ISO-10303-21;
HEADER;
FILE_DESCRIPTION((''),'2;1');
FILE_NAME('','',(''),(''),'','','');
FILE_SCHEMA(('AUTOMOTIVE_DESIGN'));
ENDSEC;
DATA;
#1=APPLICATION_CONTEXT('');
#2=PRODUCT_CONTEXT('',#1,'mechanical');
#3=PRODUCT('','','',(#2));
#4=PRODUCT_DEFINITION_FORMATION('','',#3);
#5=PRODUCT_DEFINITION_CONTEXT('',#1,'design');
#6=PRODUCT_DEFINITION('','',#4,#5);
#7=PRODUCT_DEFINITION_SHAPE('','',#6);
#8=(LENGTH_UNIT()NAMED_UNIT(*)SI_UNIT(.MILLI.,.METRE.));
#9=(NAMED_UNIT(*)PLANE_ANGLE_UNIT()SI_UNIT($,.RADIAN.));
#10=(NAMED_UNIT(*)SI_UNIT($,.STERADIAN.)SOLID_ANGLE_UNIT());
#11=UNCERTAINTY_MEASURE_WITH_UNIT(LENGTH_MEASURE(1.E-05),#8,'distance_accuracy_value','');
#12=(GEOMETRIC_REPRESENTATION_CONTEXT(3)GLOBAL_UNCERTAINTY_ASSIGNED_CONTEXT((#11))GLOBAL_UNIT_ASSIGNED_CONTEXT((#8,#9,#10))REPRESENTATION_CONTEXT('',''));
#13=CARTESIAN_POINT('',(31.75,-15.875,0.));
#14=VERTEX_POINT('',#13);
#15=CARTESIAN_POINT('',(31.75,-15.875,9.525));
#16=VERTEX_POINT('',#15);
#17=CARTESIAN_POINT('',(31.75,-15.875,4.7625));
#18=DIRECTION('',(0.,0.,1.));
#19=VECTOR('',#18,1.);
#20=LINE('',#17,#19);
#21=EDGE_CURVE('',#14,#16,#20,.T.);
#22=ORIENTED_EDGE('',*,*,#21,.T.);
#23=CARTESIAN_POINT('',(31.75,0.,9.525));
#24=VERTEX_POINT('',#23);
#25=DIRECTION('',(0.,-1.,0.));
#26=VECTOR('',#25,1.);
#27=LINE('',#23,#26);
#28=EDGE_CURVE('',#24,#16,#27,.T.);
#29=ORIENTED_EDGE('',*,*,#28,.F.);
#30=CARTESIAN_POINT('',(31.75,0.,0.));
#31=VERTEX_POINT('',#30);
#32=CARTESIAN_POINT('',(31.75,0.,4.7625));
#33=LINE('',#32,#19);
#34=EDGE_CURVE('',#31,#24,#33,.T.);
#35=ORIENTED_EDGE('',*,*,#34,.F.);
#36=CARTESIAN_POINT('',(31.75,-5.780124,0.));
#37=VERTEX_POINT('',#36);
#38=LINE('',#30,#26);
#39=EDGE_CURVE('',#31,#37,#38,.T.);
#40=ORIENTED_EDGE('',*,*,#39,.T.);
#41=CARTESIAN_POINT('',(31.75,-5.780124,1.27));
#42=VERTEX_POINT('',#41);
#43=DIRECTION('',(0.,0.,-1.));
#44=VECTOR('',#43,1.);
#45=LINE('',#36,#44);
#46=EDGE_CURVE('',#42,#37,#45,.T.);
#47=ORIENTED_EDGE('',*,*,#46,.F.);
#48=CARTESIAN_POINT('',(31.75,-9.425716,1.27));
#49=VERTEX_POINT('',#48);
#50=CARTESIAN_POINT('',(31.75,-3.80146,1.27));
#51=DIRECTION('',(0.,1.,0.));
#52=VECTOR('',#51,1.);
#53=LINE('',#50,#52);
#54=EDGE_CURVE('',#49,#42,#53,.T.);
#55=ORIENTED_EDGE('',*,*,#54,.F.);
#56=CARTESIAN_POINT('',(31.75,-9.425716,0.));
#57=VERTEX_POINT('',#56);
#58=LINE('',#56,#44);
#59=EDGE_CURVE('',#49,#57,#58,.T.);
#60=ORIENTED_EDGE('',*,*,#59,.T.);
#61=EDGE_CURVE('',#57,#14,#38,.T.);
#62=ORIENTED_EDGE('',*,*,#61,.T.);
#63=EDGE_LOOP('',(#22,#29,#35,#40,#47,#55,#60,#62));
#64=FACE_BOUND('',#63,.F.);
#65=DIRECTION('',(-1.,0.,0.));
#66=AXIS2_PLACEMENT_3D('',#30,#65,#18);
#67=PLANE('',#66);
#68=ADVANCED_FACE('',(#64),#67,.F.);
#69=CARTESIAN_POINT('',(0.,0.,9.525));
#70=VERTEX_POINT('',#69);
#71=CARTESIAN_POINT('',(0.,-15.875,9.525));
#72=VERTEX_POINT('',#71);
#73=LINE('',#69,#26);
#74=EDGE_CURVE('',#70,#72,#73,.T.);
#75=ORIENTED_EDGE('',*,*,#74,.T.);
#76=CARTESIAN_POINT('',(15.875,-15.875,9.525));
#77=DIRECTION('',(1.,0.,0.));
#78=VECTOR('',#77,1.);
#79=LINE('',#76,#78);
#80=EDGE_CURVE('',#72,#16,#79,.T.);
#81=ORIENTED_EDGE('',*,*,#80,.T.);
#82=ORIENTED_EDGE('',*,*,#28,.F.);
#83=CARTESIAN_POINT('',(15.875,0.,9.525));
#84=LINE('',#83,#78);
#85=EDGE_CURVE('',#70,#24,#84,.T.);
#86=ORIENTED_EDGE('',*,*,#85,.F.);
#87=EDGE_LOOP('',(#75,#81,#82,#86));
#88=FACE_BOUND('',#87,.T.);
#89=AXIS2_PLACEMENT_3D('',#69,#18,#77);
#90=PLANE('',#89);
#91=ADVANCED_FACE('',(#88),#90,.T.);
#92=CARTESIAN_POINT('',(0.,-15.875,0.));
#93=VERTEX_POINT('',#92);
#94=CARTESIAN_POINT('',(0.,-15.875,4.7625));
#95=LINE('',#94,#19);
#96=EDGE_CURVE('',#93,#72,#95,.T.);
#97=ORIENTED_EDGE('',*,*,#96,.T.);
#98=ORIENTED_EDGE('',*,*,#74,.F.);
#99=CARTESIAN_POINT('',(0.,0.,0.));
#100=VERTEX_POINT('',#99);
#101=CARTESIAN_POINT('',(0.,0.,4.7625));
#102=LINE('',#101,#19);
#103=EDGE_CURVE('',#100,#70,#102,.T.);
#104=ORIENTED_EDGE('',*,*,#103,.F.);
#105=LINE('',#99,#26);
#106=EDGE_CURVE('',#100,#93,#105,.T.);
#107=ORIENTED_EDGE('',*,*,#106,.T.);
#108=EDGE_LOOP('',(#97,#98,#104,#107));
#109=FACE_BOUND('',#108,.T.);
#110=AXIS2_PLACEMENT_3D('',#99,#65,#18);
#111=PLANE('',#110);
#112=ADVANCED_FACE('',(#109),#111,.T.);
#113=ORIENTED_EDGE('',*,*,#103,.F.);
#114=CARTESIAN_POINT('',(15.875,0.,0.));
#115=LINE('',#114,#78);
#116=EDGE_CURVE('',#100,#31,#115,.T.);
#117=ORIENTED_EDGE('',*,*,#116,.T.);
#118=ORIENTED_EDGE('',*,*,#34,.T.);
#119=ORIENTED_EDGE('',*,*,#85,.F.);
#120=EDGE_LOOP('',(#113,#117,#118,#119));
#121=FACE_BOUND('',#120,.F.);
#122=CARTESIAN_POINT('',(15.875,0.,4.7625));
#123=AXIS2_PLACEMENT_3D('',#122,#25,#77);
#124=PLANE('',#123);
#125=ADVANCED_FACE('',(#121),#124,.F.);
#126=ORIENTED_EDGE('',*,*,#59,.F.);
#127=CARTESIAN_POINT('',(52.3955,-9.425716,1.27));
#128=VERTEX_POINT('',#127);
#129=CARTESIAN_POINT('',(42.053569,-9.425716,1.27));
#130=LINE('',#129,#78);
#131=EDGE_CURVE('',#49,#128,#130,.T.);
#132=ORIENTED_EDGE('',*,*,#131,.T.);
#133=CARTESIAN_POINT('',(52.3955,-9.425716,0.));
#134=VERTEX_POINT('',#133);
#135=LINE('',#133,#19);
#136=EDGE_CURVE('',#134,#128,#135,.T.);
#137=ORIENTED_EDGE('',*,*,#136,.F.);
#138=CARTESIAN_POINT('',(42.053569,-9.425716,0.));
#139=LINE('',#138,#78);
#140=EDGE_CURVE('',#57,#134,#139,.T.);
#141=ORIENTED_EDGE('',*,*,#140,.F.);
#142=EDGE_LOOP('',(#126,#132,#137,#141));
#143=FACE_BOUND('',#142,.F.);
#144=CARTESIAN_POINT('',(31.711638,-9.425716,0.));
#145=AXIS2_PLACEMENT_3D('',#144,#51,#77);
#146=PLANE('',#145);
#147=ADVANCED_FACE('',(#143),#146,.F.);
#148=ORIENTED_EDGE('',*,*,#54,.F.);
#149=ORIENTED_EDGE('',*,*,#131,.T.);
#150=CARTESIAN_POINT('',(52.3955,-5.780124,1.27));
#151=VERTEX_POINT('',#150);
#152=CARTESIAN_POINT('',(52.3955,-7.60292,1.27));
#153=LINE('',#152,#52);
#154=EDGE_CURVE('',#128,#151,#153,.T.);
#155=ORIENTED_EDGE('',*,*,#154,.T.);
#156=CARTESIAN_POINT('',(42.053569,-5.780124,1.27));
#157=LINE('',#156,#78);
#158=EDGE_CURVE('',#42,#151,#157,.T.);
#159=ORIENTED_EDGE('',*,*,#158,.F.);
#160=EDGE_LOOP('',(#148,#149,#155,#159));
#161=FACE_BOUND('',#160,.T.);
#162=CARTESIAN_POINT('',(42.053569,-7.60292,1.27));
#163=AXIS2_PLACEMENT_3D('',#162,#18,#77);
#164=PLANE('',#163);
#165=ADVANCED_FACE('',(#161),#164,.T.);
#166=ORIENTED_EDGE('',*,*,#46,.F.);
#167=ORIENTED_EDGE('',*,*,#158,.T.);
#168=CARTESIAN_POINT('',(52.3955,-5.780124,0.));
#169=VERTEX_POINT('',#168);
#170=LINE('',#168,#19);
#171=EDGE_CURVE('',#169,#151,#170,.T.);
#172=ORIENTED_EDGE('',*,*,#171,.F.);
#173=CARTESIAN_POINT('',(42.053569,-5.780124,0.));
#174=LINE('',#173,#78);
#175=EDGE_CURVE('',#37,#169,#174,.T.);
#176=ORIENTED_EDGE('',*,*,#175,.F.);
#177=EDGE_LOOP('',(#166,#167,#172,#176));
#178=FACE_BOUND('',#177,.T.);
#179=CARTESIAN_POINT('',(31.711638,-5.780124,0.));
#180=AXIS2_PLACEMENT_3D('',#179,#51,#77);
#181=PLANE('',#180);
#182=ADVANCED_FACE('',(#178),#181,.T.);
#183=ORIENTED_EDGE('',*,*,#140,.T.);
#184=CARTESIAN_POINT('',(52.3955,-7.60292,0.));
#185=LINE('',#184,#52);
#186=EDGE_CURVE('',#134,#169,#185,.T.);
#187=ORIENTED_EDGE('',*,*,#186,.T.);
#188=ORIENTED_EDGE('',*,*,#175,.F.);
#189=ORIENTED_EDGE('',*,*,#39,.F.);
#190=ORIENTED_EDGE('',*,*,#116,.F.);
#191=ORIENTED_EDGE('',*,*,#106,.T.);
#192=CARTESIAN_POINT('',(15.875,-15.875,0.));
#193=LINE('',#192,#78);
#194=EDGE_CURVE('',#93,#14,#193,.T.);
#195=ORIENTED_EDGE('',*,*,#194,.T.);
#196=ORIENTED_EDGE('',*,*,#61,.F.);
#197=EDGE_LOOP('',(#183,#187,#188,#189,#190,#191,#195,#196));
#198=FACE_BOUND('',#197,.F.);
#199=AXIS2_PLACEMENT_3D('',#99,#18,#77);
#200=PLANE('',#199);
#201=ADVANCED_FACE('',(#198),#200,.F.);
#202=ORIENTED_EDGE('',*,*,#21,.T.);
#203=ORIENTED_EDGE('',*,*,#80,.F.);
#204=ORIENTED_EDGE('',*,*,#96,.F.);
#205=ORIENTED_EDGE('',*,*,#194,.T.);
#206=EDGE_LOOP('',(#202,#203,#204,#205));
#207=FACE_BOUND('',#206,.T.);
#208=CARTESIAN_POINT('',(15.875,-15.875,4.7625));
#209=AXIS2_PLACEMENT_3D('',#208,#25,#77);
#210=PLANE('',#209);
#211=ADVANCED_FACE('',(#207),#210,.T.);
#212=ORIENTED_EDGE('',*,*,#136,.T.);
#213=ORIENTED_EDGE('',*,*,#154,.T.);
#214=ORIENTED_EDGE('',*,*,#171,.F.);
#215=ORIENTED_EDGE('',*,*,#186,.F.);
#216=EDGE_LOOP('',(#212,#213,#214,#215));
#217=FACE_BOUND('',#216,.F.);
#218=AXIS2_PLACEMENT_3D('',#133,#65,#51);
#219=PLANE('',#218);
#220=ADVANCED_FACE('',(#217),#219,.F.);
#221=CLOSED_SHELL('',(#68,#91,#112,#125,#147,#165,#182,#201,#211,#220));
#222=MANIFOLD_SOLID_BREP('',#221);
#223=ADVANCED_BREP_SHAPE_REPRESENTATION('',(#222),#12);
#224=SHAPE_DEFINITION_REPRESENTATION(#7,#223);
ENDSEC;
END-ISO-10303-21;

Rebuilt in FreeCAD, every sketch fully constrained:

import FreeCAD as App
import Part
import Sketcher
from FreeCAD import Vector
Q = App.Units.Quantity

doc = App.newDocument("Part")
body = doc.addObject("PartDesign::Body", "Body")

# Sketch on XZ plane
sketch1 = doc.addObject("Sketcher::SketchObject", "Sketch")
body.addObject(sketch1)
sketch1.AttachmentSupport = (doc.XZ_Plane, [""])
sketch1.MapMode = "FlatFace"
sketch1.addGeometry(Part.LineSegment(Vector(0, 9.525, 0), Vector(0, 0, 0)), False)
sketch1.addGeometry(Part.LineSegment(Vector(0, 0, 0), Vector(31.75, 0, 0)), False)
sketch1.addGeometry(Part.LineSegment(Vector(31.75, 0, 0), Vector(31.75, 9.525, 0)), False)
sketch1.addGeometry(Part.LineSegment(Vector(31.75, 9.525, 0), Vector(0, 9.525, 0)), False)
sketch1.addConstraint(Sketcher.Constraint("Coincident", 0, 2, 1, 1))
sketch1.addConstraint(Sketcher.Constraint("Coincident", 1, 2, 2, 1))
sketch1.addConstraint(Sketcher.Constraint("Coincident", 2, 2, 3, 1))
sketch1.addConstraint(Sketcher.Constraint("Coincident", 3, 2, 0, 1))
sketch1.addConstraint(Sketcher.Constraint("Vertical", 0))
sketch1.addConstraint(Sketcher.Constraint("Horizontal", 1))
sketch1.addConstraint(Sketcher.Constraint("Vertical", 2))
sketch1.addConstraint(Sketcher.Constraint("Horizontal", 3))
sketch1.addConstraint(Sketcher.Constraint("Coincident", 0, 2, -1, 1))
sketch1.addConstraint(Sketcher.Constraint("DistanceX", 1, 1, 1, 2, Q("1.25 in")))
sketch1.addConstraint(Sketcher.Constraint("DistanceY", 0, 2, 0, 1, Q("0.375 in")))
pad1 = doc.addObject("PartDesign::Pad", "Pad")
body.addObject(pad1)
pad1.Profile = sketch1
pad1.Length = Q("0.625 in")

# Sketch on XY plane
sketch2 = doc.addObject("Sketcher::SketchObject", "Sketch001")
body.addObject(sketch2)
sketch2.AttachmentSupport = (doc.XY_Plane, [""])
sketch2.MapMode = "FlatFace"
sketch2.addGeometry(Part.LineSegment(Vector(31.711638, -5.780124, 0), Vector(31.711638, -9.425716, 0)), False)
sketch2.addGeometry(Part.LineSegment(Vector(31.711638, -9.425716, 0), Vector(52.3955, -9.425716, 0)), False)
sketch2.addGeometry(Part.LineSegment(Vector(52.3955, -9.425716, 0), Vector(52.3955, -5.780124, 0)), False)
sketch2.addGeometry(Part.LineSegment(Vector(52.3955, -5.780124, 0), Vector(31.711638, -5.780124, 0)), False)
sketch2.addConstraint(Sketcher.Constraint("Coincident", 0, 2, 1, 1))
sketch2.addConstraint(Sketcher.Constraint("Coincident", 1, 2, 2, 1))
sketch2.addConstraint(Sketcher.Constraint("Coincident", 2, 2, 3, 1))
sketch2.addConstraint(Sketcher.Constraint("Coincident", 3, 2, 0, 1))
sketch2.addConstraint(Sketcher.Constraint("Vertical", 0))
sketch2.addConstraint(Sketcher.Constraint("Horizontal", 1))
sketch2.addConstraint(Sketcher.Constraint("Vertical", 2))
sketch2.addConstraint(Sketcher.Constraint("Horizontal", 3))
sketch2.addConstraint(Sketcher.Constraint("DistanceX", 1, 1, 1, 2, Q("20.683862 mm")))
sketch2.addConstraint(Sketcher.Constraint("DistanceY", 0, 2, 0, 1, Q("3.645592 mm")))
sketch2.addConstraint(Sketcher.Constraint("DistanceX", -1, 1, 1, 2, Q("52.3955 mm")))
sketch2.addConstraint(Sketcher.Constraint("DistanceY", 0, 2, -1, 1, Q("9.425716 mm")))
pad2 = doc.addObject("PartDesign::Pad", "Pad001")
body.addObject(pad2)
pad2.Profile = sketch2
pad2.Length = Q("0.05 in")

doc.recompute()
